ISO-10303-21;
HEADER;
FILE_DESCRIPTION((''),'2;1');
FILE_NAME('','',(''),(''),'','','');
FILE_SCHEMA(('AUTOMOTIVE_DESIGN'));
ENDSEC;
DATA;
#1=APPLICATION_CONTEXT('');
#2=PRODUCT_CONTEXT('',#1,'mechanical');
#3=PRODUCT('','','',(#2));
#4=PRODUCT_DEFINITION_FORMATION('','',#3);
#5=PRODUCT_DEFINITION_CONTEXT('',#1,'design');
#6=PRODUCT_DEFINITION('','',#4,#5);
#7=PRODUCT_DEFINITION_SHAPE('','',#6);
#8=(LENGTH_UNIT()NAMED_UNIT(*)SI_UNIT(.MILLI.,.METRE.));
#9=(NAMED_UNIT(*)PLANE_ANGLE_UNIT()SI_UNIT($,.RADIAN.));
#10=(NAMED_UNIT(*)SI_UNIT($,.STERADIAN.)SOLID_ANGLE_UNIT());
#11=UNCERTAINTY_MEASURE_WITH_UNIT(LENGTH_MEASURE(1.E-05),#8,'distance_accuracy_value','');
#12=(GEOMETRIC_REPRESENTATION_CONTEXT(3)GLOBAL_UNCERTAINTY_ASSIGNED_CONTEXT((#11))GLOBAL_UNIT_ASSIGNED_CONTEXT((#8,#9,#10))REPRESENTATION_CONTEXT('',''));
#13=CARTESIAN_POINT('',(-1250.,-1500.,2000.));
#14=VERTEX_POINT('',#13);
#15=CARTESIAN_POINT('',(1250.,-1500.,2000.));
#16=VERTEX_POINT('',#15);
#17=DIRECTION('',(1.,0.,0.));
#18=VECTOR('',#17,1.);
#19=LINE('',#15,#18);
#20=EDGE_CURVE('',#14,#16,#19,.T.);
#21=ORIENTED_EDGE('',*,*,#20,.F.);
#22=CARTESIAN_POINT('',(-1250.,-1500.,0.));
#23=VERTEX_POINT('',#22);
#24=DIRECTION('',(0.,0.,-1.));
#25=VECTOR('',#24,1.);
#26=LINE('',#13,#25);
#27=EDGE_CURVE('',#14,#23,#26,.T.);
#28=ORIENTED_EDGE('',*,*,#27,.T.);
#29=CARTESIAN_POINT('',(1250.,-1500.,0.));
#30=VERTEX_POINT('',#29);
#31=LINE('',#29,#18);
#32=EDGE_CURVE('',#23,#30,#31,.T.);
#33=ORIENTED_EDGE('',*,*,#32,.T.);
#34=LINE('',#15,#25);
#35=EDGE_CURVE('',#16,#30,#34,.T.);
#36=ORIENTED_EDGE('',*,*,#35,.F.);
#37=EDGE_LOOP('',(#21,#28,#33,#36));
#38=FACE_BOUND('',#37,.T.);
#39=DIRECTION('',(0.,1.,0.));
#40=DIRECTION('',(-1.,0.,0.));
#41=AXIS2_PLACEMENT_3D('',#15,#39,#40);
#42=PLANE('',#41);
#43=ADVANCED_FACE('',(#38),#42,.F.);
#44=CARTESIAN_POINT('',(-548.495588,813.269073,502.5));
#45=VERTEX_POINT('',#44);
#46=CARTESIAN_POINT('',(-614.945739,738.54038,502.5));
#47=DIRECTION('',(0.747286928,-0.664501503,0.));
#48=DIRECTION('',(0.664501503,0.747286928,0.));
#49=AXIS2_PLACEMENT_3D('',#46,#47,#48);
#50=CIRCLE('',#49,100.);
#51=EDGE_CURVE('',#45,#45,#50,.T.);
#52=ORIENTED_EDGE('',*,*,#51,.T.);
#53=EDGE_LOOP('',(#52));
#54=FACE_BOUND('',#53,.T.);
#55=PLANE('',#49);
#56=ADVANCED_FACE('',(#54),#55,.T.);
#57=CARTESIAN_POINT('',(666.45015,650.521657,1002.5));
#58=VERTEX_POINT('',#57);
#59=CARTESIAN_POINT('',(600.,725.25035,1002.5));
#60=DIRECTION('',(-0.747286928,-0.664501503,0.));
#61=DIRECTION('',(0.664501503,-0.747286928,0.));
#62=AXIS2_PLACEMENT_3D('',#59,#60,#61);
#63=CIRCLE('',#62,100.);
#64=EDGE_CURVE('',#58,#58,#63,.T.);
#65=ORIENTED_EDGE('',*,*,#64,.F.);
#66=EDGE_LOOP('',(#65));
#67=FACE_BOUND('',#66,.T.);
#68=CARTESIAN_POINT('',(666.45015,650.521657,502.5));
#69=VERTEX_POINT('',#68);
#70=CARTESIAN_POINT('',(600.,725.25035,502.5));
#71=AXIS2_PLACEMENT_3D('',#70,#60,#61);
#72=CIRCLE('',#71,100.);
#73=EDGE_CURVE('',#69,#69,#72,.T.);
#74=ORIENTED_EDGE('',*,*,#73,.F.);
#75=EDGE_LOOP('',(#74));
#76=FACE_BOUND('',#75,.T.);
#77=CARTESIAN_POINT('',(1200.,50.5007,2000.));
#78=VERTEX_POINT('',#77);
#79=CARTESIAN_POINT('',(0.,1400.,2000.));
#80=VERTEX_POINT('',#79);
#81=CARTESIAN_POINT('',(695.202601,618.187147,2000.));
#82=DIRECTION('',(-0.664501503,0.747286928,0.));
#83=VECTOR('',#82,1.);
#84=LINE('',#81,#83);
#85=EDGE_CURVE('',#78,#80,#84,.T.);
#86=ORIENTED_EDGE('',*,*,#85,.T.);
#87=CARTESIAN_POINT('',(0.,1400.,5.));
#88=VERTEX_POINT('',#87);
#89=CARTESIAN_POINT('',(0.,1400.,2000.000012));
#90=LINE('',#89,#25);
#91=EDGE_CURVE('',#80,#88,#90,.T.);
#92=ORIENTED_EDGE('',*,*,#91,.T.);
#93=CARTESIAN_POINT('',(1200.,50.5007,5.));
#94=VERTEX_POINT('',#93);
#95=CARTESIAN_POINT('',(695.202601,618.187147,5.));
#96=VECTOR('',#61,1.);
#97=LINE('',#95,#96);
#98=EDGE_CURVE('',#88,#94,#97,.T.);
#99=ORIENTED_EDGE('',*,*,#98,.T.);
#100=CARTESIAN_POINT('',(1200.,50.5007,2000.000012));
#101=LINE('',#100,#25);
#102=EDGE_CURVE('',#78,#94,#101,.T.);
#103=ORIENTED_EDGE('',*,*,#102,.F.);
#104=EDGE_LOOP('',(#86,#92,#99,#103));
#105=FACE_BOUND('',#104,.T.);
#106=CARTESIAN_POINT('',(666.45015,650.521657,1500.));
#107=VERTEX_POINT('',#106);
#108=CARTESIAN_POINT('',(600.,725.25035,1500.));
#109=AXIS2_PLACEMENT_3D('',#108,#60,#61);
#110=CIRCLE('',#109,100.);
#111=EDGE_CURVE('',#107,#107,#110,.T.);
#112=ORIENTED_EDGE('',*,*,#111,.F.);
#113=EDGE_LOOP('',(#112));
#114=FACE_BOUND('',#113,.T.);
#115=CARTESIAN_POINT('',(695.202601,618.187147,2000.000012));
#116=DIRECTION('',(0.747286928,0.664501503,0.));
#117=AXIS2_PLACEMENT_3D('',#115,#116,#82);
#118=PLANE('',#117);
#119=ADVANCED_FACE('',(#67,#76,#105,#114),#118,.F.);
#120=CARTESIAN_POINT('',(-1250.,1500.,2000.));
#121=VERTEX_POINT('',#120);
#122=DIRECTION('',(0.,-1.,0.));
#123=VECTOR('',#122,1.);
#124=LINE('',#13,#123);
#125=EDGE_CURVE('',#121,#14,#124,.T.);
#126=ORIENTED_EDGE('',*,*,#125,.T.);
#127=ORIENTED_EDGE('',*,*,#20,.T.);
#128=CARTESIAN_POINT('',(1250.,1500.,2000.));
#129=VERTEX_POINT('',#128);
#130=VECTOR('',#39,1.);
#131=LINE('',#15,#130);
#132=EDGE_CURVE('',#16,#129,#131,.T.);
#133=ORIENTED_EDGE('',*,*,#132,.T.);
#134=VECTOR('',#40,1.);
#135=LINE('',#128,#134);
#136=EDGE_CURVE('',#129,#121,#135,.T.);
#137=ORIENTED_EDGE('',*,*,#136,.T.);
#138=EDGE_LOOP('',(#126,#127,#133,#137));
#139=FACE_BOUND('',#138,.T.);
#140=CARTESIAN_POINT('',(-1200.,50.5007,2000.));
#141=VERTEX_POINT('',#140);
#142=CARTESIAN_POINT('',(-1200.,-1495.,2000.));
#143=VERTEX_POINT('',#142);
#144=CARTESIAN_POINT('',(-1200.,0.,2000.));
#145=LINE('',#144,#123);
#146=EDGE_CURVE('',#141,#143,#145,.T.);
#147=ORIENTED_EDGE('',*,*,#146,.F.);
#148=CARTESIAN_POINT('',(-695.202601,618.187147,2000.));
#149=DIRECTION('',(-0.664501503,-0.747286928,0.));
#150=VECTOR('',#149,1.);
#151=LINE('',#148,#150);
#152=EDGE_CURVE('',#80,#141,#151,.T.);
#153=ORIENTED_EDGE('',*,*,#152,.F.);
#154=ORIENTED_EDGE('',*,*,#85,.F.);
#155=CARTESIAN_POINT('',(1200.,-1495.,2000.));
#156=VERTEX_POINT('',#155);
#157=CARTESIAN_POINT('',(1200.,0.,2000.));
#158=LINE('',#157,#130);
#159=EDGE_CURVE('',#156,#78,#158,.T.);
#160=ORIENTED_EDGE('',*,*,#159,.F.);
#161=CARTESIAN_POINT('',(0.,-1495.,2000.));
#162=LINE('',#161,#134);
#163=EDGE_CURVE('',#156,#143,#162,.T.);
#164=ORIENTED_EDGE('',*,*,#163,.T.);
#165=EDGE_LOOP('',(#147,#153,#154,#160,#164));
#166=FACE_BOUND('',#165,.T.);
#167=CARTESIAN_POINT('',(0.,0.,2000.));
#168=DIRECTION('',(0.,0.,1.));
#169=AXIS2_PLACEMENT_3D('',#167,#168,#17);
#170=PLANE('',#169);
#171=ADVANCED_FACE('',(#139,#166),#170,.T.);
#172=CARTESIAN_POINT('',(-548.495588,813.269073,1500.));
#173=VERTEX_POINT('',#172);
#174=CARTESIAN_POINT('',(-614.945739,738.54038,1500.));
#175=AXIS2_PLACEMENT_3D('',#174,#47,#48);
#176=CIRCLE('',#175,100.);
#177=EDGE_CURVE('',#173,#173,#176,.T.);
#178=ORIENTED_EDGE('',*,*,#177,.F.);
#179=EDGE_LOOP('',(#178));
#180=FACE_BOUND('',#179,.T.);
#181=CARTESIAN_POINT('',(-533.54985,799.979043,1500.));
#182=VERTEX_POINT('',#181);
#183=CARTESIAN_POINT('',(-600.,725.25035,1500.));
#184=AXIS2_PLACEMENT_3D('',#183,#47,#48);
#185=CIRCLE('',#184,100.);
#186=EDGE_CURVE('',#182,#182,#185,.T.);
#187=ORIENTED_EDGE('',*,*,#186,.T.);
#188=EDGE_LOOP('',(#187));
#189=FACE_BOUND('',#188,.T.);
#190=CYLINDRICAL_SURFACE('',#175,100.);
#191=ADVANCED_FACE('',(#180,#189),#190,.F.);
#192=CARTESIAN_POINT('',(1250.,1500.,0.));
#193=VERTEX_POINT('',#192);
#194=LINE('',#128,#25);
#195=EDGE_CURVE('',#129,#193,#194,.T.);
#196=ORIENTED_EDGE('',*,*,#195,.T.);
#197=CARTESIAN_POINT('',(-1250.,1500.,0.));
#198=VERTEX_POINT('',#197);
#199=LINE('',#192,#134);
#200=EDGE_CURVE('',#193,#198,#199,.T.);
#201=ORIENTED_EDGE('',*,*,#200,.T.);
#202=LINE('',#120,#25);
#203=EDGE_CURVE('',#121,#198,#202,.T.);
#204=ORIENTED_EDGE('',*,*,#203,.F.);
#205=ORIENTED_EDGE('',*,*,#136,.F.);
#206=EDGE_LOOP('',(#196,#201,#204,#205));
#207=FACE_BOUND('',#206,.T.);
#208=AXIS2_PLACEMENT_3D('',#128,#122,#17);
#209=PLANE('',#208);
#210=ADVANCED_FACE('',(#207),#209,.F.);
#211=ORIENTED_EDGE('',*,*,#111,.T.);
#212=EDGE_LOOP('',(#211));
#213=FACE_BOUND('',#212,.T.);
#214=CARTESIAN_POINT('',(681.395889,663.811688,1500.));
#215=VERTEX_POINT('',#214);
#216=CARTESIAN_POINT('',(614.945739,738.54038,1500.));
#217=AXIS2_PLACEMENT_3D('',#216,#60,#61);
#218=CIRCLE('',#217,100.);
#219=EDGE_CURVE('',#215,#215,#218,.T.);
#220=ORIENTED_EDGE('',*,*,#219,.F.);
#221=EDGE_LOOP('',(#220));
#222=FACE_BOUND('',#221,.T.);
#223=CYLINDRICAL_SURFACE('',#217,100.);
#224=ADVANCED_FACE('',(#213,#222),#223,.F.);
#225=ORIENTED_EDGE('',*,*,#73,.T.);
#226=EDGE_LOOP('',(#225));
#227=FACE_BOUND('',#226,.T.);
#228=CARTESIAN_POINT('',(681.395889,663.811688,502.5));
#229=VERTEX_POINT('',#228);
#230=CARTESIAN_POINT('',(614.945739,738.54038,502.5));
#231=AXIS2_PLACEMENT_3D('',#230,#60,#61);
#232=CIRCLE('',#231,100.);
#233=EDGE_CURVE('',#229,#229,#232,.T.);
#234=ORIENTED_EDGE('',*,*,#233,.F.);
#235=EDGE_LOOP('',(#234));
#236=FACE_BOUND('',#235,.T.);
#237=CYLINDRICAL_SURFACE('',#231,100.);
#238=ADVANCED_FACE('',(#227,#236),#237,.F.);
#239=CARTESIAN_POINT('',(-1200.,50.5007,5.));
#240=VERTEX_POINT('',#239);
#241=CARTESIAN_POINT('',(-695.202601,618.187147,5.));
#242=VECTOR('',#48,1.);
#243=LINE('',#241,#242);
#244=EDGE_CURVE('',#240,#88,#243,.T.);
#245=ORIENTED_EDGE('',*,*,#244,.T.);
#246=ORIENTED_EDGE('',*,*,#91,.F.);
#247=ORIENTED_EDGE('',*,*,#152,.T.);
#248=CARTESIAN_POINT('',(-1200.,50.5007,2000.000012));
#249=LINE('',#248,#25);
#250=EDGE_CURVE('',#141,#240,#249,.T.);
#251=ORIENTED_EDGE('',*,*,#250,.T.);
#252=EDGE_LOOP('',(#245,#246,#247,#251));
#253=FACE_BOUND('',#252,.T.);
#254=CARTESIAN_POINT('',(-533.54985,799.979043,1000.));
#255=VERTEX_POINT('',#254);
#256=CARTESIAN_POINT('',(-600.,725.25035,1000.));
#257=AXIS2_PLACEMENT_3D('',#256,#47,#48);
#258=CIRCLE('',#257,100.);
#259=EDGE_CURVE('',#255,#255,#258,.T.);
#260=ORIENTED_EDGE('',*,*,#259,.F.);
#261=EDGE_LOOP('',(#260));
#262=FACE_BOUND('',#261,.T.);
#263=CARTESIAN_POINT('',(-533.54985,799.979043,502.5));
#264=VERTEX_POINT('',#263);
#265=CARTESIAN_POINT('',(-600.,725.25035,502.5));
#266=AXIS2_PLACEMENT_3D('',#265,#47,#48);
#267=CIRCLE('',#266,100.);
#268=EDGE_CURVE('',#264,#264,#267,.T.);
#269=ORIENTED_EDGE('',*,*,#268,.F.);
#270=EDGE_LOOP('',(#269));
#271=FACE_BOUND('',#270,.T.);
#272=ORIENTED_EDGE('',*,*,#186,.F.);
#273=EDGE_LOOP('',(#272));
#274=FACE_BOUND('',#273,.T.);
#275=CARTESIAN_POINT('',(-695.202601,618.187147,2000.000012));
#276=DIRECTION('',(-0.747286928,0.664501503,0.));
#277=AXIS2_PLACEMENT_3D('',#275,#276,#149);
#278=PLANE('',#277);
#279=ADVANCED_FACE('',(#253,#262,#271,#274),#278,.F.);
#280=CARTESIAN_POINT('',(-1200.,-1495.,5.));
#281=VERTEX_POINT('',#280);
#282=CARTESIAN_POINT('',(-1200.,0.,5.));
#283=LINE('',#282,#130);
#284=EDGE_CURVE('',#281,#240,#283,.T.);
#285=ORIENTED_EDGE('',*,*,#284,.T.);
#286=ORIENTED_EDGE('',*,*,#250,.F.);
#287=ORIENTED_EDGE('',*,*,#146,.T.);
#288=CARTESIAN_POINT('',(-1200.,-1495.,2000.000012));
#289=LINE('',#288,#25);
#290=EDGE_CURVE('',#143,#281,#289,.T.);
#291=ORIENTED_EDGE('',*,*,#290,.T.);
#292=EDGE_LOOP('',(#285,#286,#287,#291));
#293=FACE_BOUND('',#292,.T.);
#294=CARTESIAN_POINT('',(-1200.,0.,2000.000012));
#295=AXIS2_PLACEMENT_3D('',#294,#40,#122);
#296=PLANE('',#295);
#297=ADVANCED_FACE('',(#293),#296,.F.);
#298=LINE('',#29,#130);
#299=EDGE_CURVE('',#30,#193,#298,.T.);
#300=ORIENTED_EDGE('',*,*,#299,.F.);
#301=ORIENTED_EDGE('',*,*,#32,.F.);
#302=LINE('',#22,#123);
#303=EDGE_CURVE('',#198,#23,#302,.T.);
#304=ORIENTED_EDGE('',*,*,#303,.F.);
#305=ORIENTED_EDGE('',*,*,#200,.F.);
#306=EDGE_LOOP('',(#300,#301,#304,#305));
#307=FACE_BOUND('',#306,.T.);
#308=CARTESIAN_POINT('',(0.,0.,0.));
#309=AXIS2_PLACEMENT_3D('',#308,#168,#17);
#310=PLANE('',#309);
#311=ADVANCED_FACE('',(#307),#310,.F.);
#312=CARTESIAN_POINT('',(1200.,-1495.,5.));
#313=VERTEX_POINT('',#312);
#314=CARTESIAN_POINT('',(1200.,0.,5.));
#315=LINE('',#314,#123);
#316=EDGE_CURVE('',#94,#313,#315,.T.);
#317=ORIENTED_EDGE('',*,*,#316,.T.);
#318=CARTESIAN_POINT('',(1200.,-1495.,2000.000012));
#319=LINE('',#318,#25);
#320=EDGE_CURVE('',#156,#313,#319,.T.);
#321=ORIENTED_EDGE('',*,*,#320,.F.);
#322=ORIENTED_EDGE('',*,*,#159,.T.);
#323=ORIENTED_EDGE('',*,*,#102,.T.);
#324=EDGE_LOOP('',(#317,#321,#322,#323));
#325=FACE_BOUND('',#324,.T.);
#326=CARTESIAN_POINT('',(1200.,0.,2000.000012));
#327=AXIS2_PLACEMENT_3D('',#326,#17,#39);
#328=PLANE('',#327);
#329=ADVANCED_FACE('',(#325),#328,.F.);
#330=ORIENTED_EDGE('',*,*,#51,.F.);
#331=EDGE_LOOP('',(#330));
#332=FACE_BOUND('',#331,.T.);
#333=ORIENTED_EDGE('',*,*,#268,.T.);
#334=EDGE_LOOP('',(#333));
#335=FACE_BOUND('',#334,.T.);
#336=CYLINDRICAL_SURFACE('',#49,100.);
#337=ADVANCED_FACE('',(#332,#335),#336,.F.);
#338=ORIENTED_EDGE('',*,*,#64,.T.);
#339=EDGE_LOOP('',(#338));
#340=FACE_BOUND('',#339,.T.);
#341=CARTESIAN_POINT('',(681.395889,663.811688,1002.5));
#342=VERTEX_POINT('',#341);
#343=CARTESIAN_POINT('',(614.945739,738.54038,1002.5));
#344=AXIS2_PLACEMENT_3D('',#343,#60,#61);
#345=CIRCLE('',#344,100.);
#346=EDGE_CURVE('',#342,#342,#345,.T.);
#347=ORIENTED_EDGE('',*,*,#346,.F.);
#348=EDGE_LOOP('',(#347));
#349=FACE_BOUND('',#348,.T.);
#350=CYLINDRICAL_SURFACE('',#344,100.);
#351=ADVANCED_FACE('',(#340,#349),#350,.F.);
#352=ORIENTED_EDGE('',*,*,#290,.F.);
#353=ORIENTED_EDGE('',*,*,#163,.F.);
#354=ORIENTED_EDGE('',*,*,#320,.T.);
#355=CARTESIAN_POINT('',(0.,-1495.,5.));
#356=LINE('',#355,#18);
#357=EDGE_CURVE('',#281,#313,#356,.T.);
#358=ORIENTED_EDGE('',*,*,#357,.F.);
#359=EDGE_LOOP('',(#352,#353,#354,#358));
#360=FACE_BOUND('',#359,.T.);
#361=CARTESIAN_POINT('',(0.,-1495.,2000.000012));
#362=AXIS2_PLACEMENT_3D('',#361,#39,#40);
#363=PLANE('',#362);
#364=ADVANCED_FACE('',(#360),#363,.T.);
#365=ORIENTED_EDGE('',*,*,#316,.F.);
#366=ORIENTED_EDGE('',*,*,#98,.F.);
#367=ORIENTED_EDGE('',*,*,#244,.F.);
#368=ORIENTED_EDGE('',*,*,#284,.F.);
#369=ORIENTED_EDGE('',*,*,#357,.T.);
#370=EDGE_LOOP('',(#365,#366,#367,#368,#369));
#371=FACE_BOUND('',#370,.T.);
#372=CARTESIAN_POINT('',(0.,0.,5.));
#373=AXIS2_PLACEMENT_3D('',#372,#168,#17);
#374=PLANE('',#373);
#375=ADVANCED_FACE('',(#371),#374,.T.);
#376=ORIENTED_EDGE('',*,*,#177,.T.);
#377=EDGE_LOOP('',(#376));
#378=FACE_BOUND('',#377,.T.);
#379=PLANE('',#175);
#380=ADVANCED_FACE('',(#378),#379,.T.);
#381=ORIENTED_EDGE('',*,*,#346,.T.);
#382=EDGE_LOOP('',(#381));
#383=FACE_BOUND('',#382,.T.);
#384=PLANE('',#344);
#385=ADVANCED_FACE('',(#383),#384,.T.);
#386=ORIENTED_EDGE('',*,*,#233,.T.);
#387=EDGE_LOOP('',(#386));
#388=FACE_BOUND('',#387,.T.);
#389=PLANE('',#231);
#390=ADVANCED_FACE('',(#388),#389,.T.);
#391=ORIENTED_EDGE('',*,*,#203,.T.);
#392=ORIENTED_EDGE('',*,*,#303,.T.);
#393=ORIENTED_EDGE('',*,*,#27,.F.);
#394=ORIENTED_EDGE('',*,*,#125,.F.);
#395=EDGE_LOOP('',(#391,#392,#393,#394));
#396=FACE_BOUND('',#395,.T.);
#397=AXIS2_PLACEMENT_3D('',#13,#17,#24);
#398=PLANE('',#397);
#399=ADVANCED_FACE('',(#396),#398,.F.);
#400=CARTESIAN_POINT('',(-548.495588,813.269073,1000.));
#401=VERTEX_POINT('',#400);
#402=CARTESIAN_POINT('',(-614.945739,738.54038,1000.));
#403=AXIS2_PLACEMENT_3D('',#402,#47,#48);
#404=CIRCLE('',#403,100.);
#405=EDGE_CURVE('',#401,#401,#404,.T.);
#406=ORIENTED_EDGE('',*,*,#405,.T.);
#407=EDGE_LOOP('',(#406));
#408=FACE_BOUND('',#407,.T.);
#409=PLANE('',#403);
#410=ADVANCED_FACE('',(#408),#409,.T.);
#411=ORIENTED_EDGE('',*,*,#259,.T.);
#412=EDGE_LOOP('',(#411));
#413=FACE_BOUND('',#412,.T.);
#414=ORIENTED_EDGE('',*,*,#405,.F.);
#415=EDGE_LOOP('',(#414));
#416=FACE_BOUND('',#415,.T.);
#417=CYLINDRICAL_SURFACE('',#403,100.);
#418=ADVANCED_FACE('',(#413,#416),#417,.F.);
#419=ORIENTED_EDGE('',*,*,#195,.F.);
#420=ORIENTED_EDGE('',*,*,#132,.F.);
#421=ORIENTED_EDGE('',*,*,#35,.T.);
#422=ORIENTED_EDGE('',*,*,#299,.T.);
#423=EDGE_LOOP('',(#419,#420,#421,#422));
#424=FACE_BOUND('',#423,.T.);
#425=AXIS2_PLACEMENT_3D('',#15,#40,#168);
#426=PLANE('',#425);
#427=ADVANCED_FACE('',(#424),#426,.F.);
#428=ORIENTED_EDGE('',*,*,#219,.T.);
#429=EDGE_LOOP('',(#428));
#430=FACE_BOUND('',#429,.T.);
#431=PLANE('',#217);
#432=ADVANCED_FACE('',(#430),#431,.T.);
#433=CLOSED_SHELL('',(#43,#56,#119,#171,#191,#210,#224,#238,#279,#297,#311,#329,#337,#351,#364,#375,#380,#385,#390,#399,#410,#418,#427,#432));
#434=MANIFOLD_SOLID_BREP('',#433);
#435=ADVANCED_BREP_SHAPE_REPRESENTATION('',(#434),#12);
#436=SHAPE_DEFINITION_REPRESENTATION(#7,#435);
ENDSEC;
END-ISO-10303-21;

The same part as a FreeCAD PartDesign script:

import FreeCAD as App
import Part
import Sketcher

doc = App.newDocument("Part")
body = doc.addObject("PartDesign::Body", "Body")

sketch1 = body.newObject("Sketcher::SketchObject", "Sketch")
sketch1.AttachmentSupport = (doc.getObject("XY_Plane"), [""])
sketch1.MapMode = "FlatFace"
sketch1.addGeometry(Part.LineSegment(App.Vector(-1250, 1500, 0), App.Vector(-1250, -1500, 0)), False)
sketch1.addGeometry(Part.LineSegment(App.Vector(-1250, -1500, 0), App.Vector(1250, -1500, 0)), False)
sketch1.addGeometry(Part.LineSegment(App.Vector(1250, -1500, 0), App.Vector(1250, 1500, 0)), False)
sketch1.addGeometry(Part.LineSegment(App.Vector(1250, 1500, 0), App.Vector(-1250, 1500, 0)), False)
sketch1.addConstraint(Sketcher.Constraint("Coincident", 0, 2, 1, 1))
sketch1.addConstraint(Sketcher.Constraint("Coincident", 1, 2, 2, 1))
sketch1.addConstraint(Sketcher.Constraint("Coincident", 2, 2, 3, 1))
sketch1.addConstraint(Sketcher.Constraint("Coincident", 3, 2, 0, 1))
sketch1.addConstraint(Sketcher.Constraint("Vertical", 0))
sketch1.addConstraint(Sketcher.Constraint("Horizontal", 1))
sketch1.addConstraint(Sketcher.Constraint("Vertical", 2))
sketch1.addConstraint(Sketcher.Constraint("Horizontal", 3))
sketch1.addConstraint(Sketcher.Constraint("Symmetric", 0, 2, 2, 2, -1, 1))
sketch1.addConstraint(Sketcher.Constraint("DistanceX", 1, 1, 1, 2, 2500.0))
sketch1.addConstraint(Sketcher.Constraint("DistanceY", 0, 2, 0, 1, 3000.0))
pad1 = body.newObject("PartDesign::Pad", "Pad")
pad1.Profile = sketch1
pad1.Length = 2000

sketch2 = body.newObject("Sketcher::SketchObject", "Sketch001")
sketch2.AttachmentSupport = (doc.getObject("XY_Plane"), [""])
sketch2.MapMode = "FlatFace"
sketch2.AttachmentOffset = App.Placement(App.Vector(0, 0, 2000), App.Rotation())
sketch2.addGeometry(Part.LineSegment(App.Vector(-1200, 51, 0), App.Vector(-1200, -1495, 0)), False)
sketch2.addGeometry(Part.LineSegment(App.Vector(-1200, -1495, 0), App.Vector(1200, -1495, 0)), False)
sketch2.addGeometry(Part.LineSegment(App.Vector(1200, -1495, 0), App.Vector(1200, 51, 0)), False)
sketch2.addGeometry(Part.LineSegment(App.Vector(1200, 51, 0), App.Vector(0, 1400, 0)), False)
sketch2.addGeometry(Part.LineSegment(App.Vector(0, 1400, 0), App.Vector(-1200, 51, 0)), False)
sketch2.addConstraint(Sketcher.Constraint("Coincident", 0, 2, 1, 1))
sketch2.addConstraint(Sketcher.Constraint("Coincident", 1, 2, 2, 1))
sketch2.addConstraint(Sketcher.Constraint("Coincident", 2, 2, 3, 1))
sketch2.addConstraint(Sketcher.Constraint("Coincident", 3, 2, 4, 1))
sketch2.addConstraint(Sketcher.Constraint("Coincident", 4, 2, 0, 1))
sketch2.addConstraint(Sketcher.Constraint("Vertical", 0))
sketch2.addConstraint(Sketcher.Constraint("Horizontal", 1))
sketch2.addConstraint(Sketcher.Constraint("Vertical", 2))
sketch2.addConstraint(Sketcher.Constraint("Symmetric", 2, 2, 4, 2, -2))
sketch2.addConstraint(Sketcher.Constraint("PointOnObject", 3, 2, -2))
sketch2.addConstraint(Sketcher.Constraint("DistanceX", 1, 1, 1, 2, 2400.0))
sketch2.addConstraint(Sketcher.Constraint("DistanceY", 0, 2, -1, 1, 1495.0))
sketch2.addConstraint(Sketcher.Constraint("DistanceY", -1, 1, 3, 2, 1400.0))
sketch2.addConstraint(Sketcher.Constraint("DistanceY", 0, 2, 0, 1, 1545.5007))
pocket1 = body.newObject("PartDesign::Pocket", "Pocket")
pocket1.Profile = sketch2
pocket1.Type = "TwoLengths"
pocket1.Length = 2796.084972
pocket1.Length2 = 1995
pocket1.Reversed = True

sketch3 = body.newObject("Sketcher::SketchObject", "Sketch002")
sketch3.Placement = App.Placement(App.Vector(695.202601, 618.187147, 0), App.Rotation(App.Vector(0.664501503, -0.747286928, 0), App.Vector(0, 0, 1), App.Vector(-0.747286928, -0.664501503, 0), "ZXY"))
sketch3.addGeometry(Part.Circle(App.Vector(-143, 1500, 0), App.Vector(0, 0, 1), 100), False)
sketch3.addGeometry(Part.Circle(App.Vector(-143, 1003, 0), App.Vector(0, 0, 1), 100), False)
sketch3.addGeometry(Part.Circle(App.Vector(-143, 503, 0), App.Vector(0, 0, 1), 100), False)
sketch3.addConstraint(Sketcher.Constraint("Equal", 0, 1))
sketch3.addConstraint(Sketcher.Constraint("Equal", 1, 2))
sketch3.addConstraint(Sketcher.Constraint("Vertical", 0, 3, 1, 3))
sketch3.addConstraint(Sketcher.Constraint("Vertical", 1, 3, 2, 3))
sketch3.addConstraint(Sketcher.Constraint("Diameter", 0, 200.0))
sketch3.addConstraint(Sketcher.Constraint("DistanceY", -1, 1, 0, 3, 1500.000001))
sketch3.addConstraint(Sketcher.Constraint("DistanceY", 2, 3, 1, 3, 500.0))
sketch3.addConstraint(Sketcher.Constraint("DistanceY", -1, 1, 1, 3, 1002.5))
sketch3.addConstraint(Sketcher.Constraint("DistanceX", 0, 3, -1, 1, 143.269204))
pocket2 = body.newObject("PartDesign::Pocket", "Pocket001")
pocket2.Profile = sketch3
pocket2.Length = 20

sketch4 = body.newObject("Sketcher::SketchObject", "Sketch003")
sketch4.Placement = App.Placement(App.Vector(-695.202601, 618.187147, 0), App.Rotation(App.Vector(0.664501503, 0.747286928, 0), App.Vector(0, 0, 1), App.Vector(0.747286928, -0.664501503, 0), "ZXY"))
sketch4.addGeometry(Part.Circle(App.Vector(143, 1500, 0), App.Vector(0, 0, 1), 100), False)
sketch4.addGeometry(Part.Circle(App.Vector(143, 1000, 0), App.Vector(0, 0, 1), 100), False)
sketch4.addGeometry(Part.Circle(App.Vector(143, 503, 0), App.Vector(0, 0, 1), 100), False)
sketch4.addConstraint(Sketcher.Constraint("Equal", 0, 1))
sketch4.addConstraint(Sketcher.Constraint("Equal", 1, 2))
sketch4.addConstraint(Sketcher.Constraint("Vertical", 0, 3, 1, 3))
sketch4.addConstraint(Sketcher.Constraint("Vertical", 1, 3, 2, 3))
sketch4.addConstraint(Sketcher.Constraint("Diameter", 0, 200.0))
sketch4.addConstraint(Sketcher.Constraint("DistanceY", -1, 1, 0, 3, 1500.000001))
sketch4.addConstraint(Sketcher.Constraint("DistanceY", -1, 1, 1, 3, 1000.0))
sketch4.addConstraint(Sketcher.Constraint("DistanceY", -1, 1, 2, 3, 502.5))
sketch4.addConstraint(Sketcher.Constraint("DistanceX", -1, 1, 0, 3, 143.269204))
pocket3 = body.newObject("PartDesign::Pocket", "Pocket002")
pocket3.Profile = sketch4
pocket3.Length = 20

doc.recompute()
